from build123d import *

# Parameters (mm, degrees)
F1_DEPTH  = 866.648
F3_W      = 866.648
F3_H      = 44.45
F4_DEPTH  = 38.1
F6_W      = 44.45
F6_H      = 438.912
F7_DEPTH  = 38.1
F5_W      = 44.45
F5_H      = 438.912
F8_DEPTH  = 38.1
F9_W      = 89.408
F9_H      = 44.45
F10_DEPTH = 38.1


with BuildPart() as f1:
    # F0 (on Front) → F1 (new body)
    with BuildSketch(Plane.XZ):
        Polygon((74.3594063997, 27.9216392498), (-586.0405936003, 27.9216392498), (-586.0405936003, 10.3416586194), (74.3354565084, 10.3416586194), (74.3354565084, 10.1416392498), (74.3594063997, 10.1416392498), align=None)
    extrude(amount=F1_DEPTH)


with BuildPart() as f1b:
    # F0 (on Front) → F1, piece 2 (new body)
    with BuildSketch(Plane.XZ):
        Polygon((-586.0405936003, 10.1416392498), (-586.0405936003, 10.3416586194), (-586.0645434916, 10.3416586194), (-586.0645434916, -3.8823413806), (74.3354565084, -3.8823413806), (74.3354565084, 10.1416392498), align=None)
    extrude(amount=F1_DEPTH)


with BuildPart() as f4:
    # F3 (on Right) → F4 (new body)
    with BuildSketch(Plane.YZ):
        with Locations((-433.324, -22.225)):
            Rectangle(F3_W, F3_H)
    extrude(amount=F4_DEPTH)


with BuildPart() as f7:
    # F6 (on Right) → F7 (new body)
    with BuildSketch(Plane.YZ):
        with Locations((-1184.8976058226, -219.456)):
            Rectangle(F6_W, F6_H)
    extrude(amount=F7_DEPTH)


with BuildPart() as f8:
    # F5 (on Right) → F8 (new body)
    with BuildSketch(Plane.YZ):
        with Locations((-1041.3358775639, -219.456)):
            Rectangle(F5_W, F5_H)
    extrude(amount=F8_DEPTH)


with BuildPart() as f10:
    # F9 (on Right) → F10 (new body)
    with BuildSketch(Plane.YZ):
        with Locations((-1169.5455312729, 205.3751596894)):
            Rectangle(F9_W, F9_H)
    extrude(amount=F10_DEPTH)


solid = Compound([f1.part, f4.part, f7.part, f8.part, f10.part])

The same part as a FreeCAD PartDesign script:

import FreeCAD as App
import Part
import Sketcher

V = App.Vector
Q = App.Units.Quantity

doc = App.newDocument("Part")
body = doc.addObject("PartDesign::Body", "Body")

sketch1 = body.newObject("Sketcher::SketchObject", "Sketch")
sketch1.AttachmentSupport = (doc.getObject("XZ_Plane"), [""])
sketch1.MapMode = "FlatFace"
sketch1.addGeometry([
    Part.LineSegment(V(74.359, 27.922, 0), V(-586.041, 27.922, 0)),
    Part.LineSegment(V(-586.041, 27.922, 0), V(-586.041, 10.342, 0)),
    Part.LineSegment(V(-586.041, 10.342, 0), V(74.335, 10.342, 0)),
    Part.LineSegment(V(74.335, 10.342, 0), V(74.335, 10.142, 0)),
    Part.LineSegment(V(74.335, 10.142, 0), V(74.359, 10.142, 0)),
    Part.LineSegment(V(74.359, 10.142, 0), V(74.359, 27.922, 0)),
], False)
sketch1.addConstraint([
    Sketcher.Constraint("Coincident", 0, 2, 1, 1),
    Sketcher.Constraint("Coincident", 1, 2, 2, 1),
    Sketcher.Constraint("Coincident", 2, 2, 3, 1),
    Sketcher.Constraint("Coincident", 3, 2, 4, 1),
    Sketcher.Constraint("Coincident", 4, 2, 5, 1),
    Sketcher.Constraint("Coincident", 5, 2, 0, 1),
    Sketcher.Constraint("Horizontal", 0),
    Sketcher.Constraint("Vertical", 1),
    Sketcher.Constraint("Horizontal", 2),
    Sketcher.Constraint("Vertical", 3),
    Sketcher.Constraint("Horizontal", 4),
    Sketcher.Constraint("Vertical", 5),
    Sketcher.Constraint("DistanceX", 0, 2, 0, 1, Q("26 in")),
    Sketcher.Constraint("DistanceY", 5, 1, 5, 2, Q("0.7 in")),
    Sketcher.Constraint("DistanceX", 2, 1, 2, 2, Q("660.37605 mm")),
    Sketcher.Constraint("DistanceY", 1, 2, 1, 1, Q("17.579981 mm")),
    Sketcher.Constraint("DistanceY", -1, 1, 0, 2, Q("27.921639 mm")),
    Sketcher.Constraint("DistanceX", 0, 2, -1, 1, Q("586.040594 mm")),
])
pad1 = body.newObject("PartDesign::Pad", "Pad")
pad1.Profile = sketch1
pad1.Length = Q("34.12 in")
body2 = doc.addObject("PartDesign::Body", "Body001")

sketch2 = body2.newObject("Sketcher::SketchObject", "Sketch001")
sketch2.AttachmentSupport = (doc.getObject("XZ_Plane001"), [""])
sketch2.MapMode = "FlatFace"
sketch2.addGeometry([
    Part.LineSegment(V(-586.041, 10.142, 0), V(-586.041, 10.342, 0)),
    Part.LineSegment(V(-586.041, 10.342, 0), V(-586.065, 10.342, 0)),
    Part.LineSegment(V(-586.065, 10.342, 0), V(-586.065, -3.882, 0)),
    Part.LineSegment(V(-586.065, -3.882, 0), V(74.335, -3.882, 0)),
    Part.LineSegment(V(74.335, -3.882, 0), V(74.335, 10.142, 0)),
    Part.LineSegment(V(74.335, 10.142, 0), V(-586.041, 10.142, 0)),
], False)
sketch2.addConstraint([
    Sketcher.Constraint("Coincident", 0, 2, 1, 1),
    Sketcher.Constraint("Coincident", 1, 2, 2, 1),
    Sketcher.Constraint("Coincident", 2, 2, 3, 1),
    Sketcher.Constraint("Coincident", 3, 2, 4, 1),
    Sketcher.Constraint("Coincident", 4, 2, 5, 1),
    Sketcher.Constraint("Coincident", 5, 2, 0, 1),
    Sketcher.Constraint("Vertical", 0),
    Sketcher.Constraint("Horizontal", 1),
    Sketcher.Constraint("Vertical", 2),
    Sketcher.Constraint("Horizontal", 3),
    Sketcher.Constraint("Vertical", 4),
    Sketcher.Constraint("Horizontal", 5),
    Sketcher.Constraint("DistanceX", 3, 1, 3, 2, Q("26 in")),
    Sketcher.Constraint("DistanceY", 2, 2, 2, 1, Q("0.56 in")),
    Sketcher.Constraint("DistanceX", 1, 2, 1, 1, Q("0.02395 mm")),
    Sketcher.Constraint("DistanceY", 0, 1, 0, 2, Q("0.200019 mm")),
    Sketcher.Constraint("DistanceY", -1, 1, 0, 2, Q("10.341659 mm")),
    Sketcher.Constraint("DistanceX", 0, 2, -1, 1, Q("586.040594 mm")),
])
pad2 = body2.newObject("PartDesign::Pad", "Pad001")
pad2.Profile = sketch2
pad2.Length = Q("34.12 in")
body3 = doc.addObject("PartDesign::Body", "Body002")

sketch3 = body3.newObject("Sketcher::SketchObject", "Sketch002")
sketch3.AttachmentSupport = (doc.getObject("YZ_Plane002"), [""])
sketch3.MapMode = "FlatFace"
sketch3.addGeometry([
    Part.LineSegment(V(-867, 0, 0), V(-867, -44, 0)),
    Part.LineSegment(V(-867, -44, 0), V(0, -44, 0)),
    Part.LineSegment(V(0, -44, 0), V(0, 0, 0)),
    Part.LineSegment(V(0, 0, 0), V(-867, 0, 0)),
], False)
sketch3.addConstraint([
    Sketcher.Constraint("Coincident", 0, 2, 1, 1),
    Sketcher.Constraint("Coincident", 1, 2, 2, 1),
    Sketcher.Constraint("Coincident", 2, 2, 3, 1),
    Sketcher.Constraint("Coincident", 3, 2, 0, 1),
    Sketcher.Constraint("Vertical", 0),
    Sketcher.Constraint("Horizontal", 1),
    Sketcher.Constraint("Vertical", 2),
    Sketcher.Constraint("Horizontal", 3),
    Sketcher.Constraint("Coincident", 2, 2, -1, 1),
    Sketcher.Constraint("DistanceX", 1, 1, 1, 2, Q("34.12 in")),
    Sketcher.Constraint("DistanceY", 0, 2, 0, 1, Q("1.75 in")),
])
pad3 = body3.newObject("PartDesign::Pad", "Pad002")
pad3.Profile = sketch3
pad3.Length = Q("1.5 in")
body4 = doc.addObject("PartDesign::Body", "Body003")

sketch4 = body4.newObject("Sketcher::SketchObject", "Sketch003")
sketch4.AttachmentSupport = (doc.getObject("YZ_Plane003"), [""])
sketch4.MapMode = "FlatFace"
sketch4.addGeometry([
    Part.LineSegment(V(-1207, 0, 0), V(-1207, -439, 0)),
    Part.LineSegment(V(-1207, -439, 0), V(-1163, -439, 0)),
    Part.LineSegment(V(-1163, -439, 0), V(-1163, 0, 0)),
    Part.LineSegment(V(-1163, 0, 0), V(-1207, 0, 0)),
], False)
sketch4.addConstraint([
    Sketcher.Constraint("Coincident", 0, 2, 1, 1),
    Sketcher.Constraint("Coincident", 1, 2, 2, 1),
    Sketcher.Constraint("Coincident", 2, 2, 3, 1),
    Sketcher.Constraint("Coincident", 3, 2, 0, 1),
    Sketcher.Constraint("Vertical", 0),
    Sketcher.Constraint("Horizontal", 1),
    Sketcher.Constraint("Vertical", 2),
    Sketcher.Constraint("Horizontal", 3),
    Sketcher.Constraint("PointOnObject", 2, 2, -1),
    Sketcher.Constraint("DistanceX", 1, 1, 1, 2, Q("1.75 in")),
    Sketcher.Constraint("DistanceY", 0, 2, 0, 1, Q("17.28 in")),
    Sketcher.Constraint("DistanceX", 0, 2, -1, 1, Q("1207.122606 mm")),
])
pad4 = body4.newObject("PartDesign::Pad", "Pad003")
pad4.Profile = sketch4
pad4.Length = Q("1.5 in")
body5 = doc.addObject("PartDesign::Body", "Body004")

sketch5 = body5.newObject("Sketcher::SketchObject", "Sketch004")
sketch5.AttachmentSupport = (doc.getObject("YZ_Plane004"), [""])
sketch5.MapMode = "FlatFace"
sketch5.addGeometry([
    Part.LineSegment(V(-1064, 0, 0), V(-1064, -439, 0)),
    Part.LineSegment(V(-1064, -439, 0), V(-1019, -439, 0)),
    Part.LineSegment(V(-1019, -439, 0), V(-1019, 0, 0)),
    Part.LineSegment(V(-1019, 0, 0), V(-1064, 0, 0)),
], False)
sketch5.addConstraint([
    Sketcher.Constraint("Coincident", 0, 2, 1, 1),
    Sketcher.Constraint("Coincident", 1, 2, 2, 1),
    Sketcher.Constraint("Coincident", 2, 2, 3, 1),
    Sketcher.Constraint("Coincident", 3, 2, 0, 1),
    Sketcher.Constraint("Vertical", 0),
    Sketcher.Constraint("Horizontal", 1),
    Sketcher.Constraint("Vertical", 2),
    Sketcher.Constraint("Horizontal", 3),
    Sketcher.Constraint("PointOnObject", 2, 2, -1),
    Sketcher.Constraint("DistanceX", 1, 1, 1, 2, Q("1.75 in")),
    Sketcher.Constraint("DistanceY", 0, 2, 0, 1, Q("17.28 in")),
    Sketcher.Constraint("DistanceX", 0, 2, -1, 1, Q("1063.560878 mm")),
])
pad5 = body5.newObject("PartDesign::Pad", "Pad004")
pad5.Profile = sketch5
pad5.Length = Q("1.5 in")
body6 = doc.addObject("PartDesign::Body", "Body005")

sketch6 = body6.newObject("Sketcher::SketchObject", "Sketch005")
sketch6.AttachmentSupport = (doc.getObject("YZ_Plane005"), [""])
sketch6.MapMode = "FlatFace"
sketch6.addGeometry([
    Part.LineSegment(V(-1214, 228, 0), V(-1214, 183, 0)),
    Part.LineSegment(V(-1214, 183, 0), V(-1125, 183, 0)),
    Part.LineSegment(V(-1125, 183, 0), V(-1125, 228, 0)),
    Part.LineSegment(V(-1125, 228, 0), V(-1214, 228, 0)),
], False)
sketch6.addConstraint([
    Sketcher.Constraint("Coincident", 0, 2, 1, 1),
    Sketcher.Constraint("Coincident", 1, 2, 2, 1),
    Sketcher.Constraint("Coincident", 2, 2, 3, 1),
    Sketcher.Constraint("Coincident", 3, 2, 0, 1),
    Sketcher.Constraint("Vertical", 0),
    Sketcher.Constraint("Horizontal", 1),
    Sketcher.Constraint("Vertical", 2),
    Sketcher.Constraint("Horizontal", 3),
    Sketcher.Constraint("DistanceX", 1, 1, 1, 2, Q("3.52 in")),
    Sketcher.Constraint("DistanceY", 0, 2, 0, 1, Q("1.75 in")),
    Sketcher.Constraint("DistanceX", 0, 2, -1, 1, Q("1214.249531 mm")),
    Sketcher.Constraint("DistanceY", -1, 1, 0, 2, Q("183.15016 mm")),
])
pad6 = body6.newObject("PartDesign::Pad", "Pad005")
pad6.Profile = sketch6
pad6.Length = Q("1.5 in")
body2.Visibility = False

doc.recompute()
